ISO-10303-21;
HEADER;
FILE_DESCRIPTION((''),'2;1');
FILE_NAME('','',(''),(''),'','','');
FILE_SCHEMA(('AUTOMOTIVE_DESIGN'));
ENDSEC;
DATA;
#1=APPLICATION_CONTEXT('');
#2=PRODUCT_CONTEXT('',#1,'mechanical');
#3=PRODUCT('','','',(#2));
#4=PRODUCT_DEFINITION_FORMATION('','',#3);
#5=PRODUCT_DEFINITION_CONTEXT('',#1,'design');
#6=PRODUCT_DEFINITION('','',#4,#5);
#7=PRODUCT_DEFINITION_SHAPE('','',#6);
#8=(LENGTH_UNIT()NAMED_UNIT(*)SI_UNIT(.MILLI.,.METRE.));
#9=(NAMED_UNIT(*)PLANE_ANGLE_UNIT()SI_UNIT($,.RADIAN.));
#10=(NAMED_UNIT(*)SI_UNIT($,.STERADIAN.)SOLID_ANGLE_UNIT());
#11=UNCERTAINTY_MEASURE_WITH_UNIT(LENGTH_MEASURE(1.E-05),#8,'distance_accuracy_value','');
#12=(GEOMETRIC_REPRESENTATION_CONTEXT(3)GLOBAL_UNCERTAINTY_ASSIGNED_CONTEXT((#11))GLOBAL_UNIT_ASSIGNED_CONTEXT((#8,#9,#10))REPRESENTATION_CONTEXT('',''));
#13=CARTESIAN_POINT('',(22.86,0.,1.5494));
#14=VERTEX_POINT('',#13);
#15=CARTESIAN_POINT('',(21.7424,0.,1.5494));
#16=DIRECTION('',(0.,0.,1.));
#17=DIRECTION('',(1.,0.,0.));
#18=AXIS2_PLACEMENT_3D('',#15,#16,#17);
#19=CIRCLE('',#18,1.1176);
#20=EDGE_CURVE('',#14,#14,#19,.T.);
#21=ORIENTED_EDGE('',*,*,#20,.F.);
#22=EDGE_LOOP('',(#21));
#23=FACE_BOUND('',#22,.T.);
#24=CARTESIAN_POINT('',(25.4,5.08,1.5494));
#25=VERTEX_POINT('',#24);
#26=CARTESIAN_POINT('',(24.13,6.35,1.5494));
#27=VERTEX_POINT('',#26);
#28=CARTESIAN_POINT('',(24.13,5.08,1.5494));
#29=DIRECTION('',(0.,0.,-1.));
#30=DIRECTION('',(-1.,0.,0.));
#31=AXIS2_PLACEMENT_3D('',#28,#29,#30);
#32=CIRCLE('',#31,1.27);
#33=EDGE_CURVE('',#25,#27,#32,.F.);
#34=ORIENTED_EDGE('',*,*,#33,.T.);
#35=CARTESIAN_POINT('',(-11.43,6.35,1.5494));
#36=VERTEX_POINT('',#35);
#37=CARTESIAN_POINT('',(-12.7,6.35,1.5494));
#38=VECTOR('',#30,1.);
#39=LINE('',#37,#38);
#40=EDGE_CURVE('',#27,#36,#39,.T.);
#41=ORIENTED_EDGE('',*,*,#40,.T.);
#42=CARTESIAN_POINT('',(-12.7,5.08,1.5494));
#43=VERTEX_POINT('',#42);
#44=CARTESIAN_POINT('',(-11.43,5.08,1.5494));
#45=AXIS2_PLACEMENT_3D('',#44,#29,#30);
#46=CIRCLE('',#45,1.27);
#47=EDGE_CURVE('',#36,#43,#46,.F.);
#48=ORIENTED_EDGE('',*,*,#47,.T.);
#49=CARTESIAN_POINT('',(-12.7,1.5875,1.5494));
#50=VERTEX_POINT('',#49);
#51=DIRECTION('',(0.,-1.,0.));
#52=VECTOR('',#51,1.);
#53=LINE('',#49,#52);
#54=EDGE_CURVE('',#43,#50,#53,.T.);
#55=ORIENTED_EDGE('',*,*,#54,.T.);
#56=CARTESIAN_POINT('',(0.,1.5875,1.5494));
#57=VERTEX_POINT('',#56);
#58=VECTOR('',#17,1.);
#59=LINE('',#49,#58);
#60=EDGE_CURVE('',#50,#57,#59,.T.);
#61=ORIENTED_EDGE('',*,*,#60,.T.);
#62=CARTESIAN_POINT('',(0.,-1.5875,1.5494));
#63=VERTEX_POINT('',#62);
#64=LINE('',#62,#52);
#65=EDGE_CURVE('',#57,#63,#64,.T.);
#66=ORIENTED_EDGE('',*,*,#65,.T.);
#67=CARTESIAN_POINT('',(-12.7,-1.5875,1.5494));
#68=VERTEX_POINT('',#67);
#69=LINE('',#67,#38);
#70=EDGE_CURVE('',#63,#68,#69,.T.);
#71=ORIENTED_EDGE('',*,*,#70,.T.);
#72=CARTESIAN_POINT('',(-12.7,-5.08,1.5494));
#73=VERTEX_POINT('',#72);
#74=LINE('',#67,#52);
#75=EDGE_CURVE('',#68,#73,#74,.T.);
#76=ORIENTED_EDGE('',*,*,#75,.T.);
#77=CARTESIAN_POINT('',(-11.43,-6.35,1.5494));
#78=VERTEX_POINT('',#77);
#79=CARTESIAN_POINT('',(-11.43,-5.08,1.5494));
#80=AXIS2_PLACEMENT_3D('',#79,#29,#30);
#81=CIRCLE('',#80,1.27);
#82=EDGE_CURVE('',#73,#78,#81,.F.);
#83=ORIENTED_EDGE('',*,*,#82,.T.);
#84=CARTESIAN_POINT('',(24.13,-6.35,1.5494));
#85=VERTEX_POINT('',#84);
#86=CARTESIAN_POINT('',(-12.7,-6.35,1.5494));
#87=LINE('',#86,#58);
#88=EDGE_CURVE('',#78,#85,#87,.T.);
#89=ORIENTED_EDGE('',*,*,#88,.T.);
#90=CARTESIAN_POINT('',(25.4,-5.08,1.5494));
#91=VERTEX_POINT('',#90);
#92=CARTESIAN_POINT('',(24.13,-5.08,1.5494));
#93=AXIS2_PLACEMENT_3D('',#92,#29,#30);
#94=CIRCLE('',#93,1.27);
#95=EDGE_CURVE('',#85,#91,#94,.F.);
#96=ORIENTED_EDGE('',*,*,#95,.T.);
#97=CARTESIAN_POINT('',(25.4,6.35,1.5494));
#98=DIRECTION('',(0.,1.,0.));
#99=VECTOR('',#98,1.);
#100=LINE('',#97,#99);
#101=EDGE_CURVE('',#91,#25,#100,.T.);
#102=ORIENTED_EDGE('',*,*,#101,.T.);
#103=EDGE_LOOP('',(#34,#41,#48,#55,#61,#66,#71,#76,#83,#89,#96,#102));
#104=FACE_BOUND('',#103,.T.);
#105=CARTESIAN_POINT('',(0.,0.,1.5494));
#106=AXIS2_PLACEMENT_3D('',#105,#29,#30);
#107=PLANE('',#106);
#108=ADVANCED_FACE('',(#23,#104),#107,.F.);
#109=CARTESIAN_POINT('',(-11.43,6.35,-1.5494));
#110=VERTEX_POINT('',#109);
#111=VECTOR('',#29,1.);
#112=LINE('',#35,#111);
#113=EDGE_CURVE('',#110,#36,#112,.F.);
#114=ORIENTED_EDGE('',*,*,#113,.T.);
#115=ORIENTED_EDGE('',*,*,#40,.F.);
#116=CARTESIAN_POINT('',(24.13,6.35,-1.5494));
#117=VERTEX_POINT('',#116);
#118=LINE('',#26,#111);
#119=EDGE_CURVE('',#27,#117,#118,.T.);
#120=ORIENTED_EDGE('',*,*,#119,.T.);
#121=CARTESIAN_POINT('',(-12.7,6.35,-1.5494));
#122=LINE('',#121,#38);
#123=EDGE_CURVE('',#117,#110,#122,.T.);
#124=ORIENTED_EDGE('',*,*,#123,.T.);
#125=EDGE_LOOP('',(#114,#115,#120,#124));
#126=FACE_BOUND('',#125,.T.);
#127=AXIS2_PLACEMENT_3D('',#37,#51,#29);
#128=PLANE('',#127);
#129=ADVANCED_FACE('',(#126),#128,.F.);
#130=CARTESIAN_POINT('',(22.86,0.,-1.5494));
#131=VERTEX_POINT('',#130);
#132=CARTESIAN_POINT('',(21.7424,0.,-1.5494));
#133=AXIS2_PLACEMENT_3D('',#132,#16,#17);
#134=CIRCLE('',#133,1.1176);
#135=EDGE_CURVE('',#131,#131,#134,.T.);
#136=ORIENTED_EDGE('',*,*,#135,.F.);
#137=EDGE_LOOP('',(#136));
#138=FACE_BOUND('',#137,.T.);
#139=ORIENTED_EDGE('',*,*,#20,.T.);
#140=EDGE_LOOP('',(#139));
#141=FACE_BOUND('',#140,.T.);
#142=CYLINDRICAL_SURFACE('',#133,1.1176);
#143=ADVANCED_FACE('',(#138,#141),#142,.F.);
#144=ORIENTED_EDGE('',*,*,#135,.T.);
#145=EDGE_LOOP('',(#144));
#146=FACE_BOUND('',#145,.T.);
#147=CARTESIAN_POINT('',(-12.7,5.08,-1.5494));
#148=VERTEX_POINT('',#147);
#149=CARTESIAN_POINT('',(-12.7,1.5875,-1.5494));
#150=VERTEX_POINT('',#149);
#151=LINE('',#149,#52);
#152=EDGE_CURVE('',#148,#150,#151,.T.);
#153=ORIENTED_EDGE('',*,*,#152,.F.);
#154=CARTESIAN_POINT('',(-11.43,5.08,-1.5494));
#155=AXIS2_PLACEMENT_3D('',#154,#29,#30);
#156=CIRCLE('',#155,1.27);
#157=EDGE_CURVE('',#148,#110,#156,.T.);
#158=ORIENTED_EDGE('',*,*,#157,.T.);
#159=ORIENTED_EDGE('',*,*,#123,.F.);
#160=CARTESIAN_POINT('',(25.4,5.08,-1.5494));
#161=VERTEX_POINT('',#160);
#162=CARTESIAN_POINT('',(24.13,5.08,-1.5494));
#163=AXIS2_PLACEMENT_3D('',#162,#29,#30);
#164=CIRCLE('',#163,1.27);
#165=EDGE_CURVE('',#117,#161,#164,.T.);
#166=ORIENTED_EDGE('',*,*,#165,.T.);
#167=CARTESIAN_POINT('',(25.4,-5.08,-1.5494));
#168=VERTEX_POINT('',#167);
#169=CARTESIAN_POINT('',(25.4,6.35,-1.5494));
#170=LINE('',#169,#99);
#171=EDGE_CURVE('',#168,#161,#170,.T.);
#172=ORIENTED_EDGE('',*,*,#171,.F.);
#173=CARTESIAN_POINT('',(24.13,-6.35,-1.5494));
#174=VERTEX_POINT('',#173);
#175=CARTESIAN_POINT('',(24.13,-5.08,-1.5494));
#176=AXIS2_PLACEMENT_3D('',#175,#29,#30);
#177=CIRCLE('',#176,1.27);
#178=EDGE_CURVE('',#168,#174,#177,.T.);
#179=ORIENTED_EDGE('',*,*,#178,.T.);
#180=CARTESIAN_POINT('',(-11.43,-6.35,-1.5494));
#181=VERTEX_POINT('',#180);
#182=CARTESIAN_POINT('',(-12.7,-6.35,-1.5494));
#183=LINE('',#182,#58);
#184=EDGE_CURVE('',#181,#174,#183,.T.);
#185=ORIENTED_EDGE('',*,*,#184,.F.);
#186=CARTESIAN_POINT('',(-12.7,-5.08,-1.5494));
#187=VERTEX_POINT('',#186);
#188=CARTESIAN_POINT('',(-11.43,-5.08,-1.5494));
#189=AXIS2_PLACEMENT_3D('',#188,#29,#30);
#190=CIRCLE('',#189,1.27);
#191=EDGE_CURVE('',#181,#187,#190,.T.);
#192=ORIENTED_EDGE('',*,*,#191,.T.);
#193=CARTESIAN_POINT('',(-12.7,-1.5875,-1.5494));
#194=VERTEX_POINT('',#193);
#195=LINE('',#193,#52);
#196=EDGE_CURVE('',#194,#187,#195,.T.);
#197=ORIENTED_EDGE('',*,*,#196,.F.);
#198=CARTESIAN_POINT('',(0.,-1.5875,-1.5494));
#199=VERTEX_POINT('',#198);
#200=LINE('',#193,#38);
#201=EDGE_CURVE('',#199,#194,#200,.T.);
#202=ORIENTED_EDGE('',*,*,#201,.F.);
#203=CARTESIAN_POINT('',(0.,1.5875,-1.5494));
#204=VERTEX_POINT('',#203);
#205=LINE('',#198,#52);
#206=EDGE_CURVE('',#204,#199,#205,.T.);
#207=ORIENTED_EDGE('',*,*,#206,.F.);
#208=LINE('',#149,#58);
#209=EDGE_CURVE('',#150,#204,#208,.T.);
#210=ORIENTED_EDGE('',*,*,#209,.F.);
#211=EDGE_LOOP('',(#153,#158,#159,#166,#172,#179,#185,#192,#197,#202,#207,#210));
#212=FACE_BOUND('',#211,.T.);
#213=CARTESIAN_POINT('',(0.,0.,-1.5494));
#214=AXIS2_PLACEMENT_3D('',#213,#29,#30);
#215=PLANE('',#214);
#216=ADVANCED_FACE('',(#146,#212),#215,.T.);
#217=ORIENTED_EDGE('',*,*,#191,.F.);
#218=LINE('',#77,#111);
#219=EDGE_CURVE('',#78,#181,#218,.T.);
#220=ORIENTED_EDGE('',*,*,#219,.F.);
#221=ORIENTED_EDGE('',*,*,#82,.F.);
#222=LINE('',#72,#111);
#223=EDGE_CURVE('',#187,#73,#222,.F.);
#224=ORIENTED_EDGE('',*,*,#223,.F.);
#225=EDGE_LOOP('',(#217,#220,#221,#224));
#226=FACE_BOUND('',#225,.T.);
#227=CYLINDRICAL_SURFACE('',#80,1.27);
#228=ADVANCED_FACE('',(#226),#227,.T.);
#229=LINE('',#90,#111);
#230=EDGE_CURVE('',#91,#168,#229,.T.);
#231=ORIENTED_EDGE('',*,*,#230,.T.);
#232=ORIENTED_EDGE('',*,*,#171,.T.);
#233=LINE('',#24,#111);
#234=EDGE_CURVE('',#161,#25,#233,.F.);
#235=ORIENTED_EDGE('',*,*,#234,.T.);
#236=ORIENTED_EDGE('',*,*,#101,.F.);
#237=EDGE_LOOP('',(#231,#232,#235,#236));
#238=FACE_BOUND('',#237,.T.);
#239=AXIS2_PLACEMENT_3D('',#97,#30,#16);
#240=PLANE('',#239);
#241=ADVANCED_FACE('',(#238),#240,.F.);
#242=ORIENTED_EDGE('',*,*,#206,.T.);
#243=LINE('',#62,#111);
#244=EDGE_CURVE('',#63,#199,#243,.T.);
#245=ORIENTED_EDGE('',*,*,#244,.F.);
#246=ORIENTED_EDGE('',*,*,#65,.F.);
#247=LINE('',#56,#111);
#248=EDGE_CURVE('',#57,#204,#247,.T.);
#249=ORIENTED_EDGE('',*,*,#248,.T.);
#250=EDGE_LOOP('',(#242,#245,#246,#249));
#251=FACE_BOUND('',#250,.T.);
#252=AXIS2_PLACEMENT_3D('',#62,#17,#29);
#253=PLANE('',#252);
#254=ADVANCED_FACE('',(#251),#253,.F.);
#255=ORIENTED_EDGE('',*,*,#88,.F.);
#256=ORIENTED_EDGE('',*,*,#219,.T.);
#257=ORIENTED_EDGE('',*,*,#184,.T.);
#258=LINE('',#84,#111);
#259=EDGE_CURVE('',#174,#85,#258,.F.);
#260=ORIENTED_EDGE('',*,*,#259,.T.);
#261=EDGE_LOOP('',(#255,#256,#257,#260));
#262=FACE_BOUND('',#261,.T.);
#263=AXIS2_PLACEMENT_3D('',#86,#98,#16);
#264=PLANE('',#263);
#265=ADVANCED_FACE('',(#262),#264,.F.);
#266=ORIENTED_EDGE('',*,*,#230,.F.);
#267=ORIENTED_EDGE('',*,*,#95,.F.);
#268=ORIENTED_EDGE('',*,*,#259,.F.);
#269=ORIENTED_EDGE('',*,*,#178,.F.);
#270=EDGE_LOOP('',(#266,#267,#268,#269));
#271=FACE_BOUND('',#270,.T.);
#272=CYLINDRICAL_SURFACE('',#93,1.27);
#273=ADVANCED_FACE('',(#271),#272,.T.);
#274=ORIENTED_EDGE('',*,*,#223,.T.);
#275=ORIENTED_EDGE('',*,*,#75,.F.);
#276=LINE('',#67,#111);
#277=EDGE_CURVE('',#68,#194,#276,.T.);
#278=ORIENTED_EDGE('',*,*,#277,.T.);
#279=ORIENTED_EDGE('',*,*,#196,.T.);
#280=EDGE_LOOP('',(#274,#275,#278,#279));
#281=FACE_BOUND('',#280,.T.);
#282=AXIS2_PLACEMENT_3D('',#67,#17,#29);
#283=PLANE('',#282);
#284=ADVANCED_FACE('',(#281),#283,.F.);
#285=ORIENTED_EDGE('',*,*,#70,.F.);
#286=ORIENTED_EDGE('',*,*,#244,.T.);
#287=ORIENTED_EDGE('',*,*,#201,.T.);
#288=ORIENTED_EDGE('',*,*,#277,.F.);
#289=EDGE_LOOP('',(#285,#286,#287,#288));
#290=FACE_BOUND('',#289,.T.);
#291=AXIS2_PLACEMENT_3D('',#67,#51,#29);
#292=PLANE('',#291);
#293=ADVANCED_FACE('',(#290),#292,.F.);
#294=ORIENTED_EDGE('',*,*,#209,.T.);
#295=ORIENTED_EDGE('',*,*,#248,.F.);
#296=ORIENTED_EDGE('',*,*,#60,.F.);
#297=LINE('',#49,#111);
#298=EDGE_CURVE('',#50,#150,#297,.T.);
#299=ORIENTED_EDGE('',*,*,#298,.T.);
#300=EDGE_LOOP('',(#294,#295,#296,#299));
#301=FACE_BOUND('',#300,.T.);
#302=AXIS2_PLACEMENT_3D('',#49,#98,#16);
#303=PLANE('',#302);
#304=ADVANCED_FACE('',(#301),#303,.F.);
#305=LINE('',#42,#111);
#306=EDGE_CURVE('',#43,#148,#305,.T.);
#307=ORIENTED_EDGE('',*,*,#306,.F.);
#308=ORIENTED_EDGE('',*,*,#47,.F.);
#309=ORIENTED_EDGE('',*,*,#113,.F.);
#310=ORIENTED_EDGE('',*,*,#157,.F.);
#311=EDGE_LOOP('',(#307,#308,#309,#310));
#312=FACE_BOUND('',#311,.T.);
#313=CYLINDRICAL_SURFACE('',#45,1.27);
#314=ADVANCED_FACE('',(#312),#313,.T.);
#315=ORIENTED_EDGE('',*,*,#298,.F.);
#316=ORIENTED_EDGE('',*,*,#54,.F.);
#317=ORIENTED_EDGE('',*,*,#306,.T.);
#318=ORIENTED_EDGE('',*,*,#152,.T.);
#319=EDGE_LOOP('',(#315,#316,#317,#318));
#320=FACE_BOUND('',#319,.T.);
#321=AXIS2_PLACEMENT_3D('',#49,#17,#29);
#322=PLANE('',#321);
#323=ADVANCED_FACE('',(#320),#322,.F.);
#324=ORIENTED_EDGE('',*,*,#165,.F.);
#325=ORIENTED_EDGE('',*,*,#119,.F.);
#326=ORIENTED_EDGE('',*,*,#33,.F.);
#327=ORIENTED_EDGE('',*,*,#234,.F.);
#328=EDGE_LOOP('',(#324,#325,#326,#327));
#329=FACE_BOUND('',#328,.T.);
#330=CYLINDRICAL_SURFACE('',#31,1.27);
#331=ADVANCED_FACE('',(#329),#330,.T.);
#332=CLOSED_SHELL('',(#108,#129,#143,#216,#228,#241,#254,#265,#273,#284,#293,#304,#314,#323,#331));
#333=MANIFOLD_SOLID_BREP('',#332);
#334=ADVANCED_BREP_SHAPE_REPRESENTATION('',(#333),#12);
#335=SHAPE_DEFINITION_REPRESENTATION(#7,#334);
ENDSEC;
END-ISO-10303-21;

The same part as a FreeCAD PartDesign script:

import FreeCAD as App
import Part
import Sketcher
Q = App.Units.Quantity


def edges_at(feature, points):
    """Names of the edges that pass closest to the given points."""
    edges = feature.Shape.Edges
    near = lambda p: min(range(len(edges)), key=lambda i: edges[i].distToShape(Part.Vertex(*p))[0])
    return sorted({f"Edge{near(p) + 1}" for p in points})

doc = App.newDocument("Part")
body = doc.addObject("PartDesign::Body", "Body")

# Sketch on XY plane
sketch1 = doc.addObject("Sketcher::SketchObject", "Sketch")
body.addObject(sketch1)
sketch1.AttachmentSupport = (doc.XY_Plane, [""])
sketch1.MapMode = "FlatFace"
sketch1.addGeometry(Part.LineSegment(App.Vector(-12.7, 6.35, 0), App.Vector(-12.7, 1.5875, 0)), False)
sketch1.addGeometry(Part.LineSegment(App.Vector(-12.7, 1.5875, 0), App.Vector(0, 1.5875, 0)), False)
sketch1.addGeometry(Part.LineSegment(App.Vector(0, 1.5875, 0), App.Vector(0, -1.5875, 0)), False)
sketch1.addGeometry(Part.LineSegment(App.Vector(0, -1.5875, 0), App.Vector(-12.7, -1.5875, 0)), False)
sketch1.addGeometry(Part.LineSegment(App.Vector(-12.7, -1.5875, 0), App.Vector(-12.7, -6.35, 0)), False)
sketch1.addGeometry(Part.LineSegment(App.Vector(-12.7, -6.35, 0), App.Vector(25.4, -6.35, 0)), False)
sketch1.addGeometry(Part.LineSegment(App.Vector(25.4, -6.35, 0), App.Vector(25.4, 6.35, 0)), False)
sketch1.addGeometry(Part.LineSegment(App.Vector(25.4, 6.35, 0), App.Vector(-12.7, 6.35, 0)), False)
sketch1.addConstraint(Sketcher.Constraint("Coincident", 0, 2, 1, 1))
sketch1.addConstraint(Sketcher.Constraint("Coincident", 1, 2, 2, 1))
sketch1.addConstraint(Sketcher.Constraint("Coincident", 2, 2, 3, 1))
sketch1.addConstraint(Sketcher.Constraint("Coincident", 3, 2, 4, 1))
sketch1.addConstraint(Sketcher.Constraint("Coincident", 4, 2, 5, 1))
sketch1.addConstraint(Sketcher.Constraint("Coincident", 5, 2, 6, 1))
sketch1.addConstraint(Sketcher.Constraint("Coincident", 6, 2, 7, 1))
sketch1.addConstraint(Sketcher.Constraint("Coincident", 7, 2, 0, 1))
sketch1.addConstraint(Sketcher.Constraint("Vertical", 0))
sketch1.addConstraint(Sketcher.Constraint("Horizontal", 1))
sketch1.addConstraint(Sketcher.Constraint("Vertical", 2))
sketch1.addConstraint(Sketcher.Constraint("Horizontal", 3))
sketch1.addConstraint(Sketcher.Constraint("Vertical", 4))
sketch1.addConstraint(Sketcher.Constraint("Horizontal", 5))
sketch1.addConstraint(Sketcher.Constraint("Vertical", 6))
sketch1.addConstraint(Sketcher.Constraint("Horizontal", 7))
sketch1.addConstraint(Sketcher.Constraint("Symmetric", 1, 2, 2, 2, -1, 1))
sketch1.addConstraint(Sketcher.Constraint("Symmetric", 4, 2, 7, 2, -1))
sketch1.addConstraint(Sketcher.Constraint("Equal", 3, 6))
sketch1.addConstraint(Sketcher.Constraint("DistanceX", 1, 1, 1, 2, Q("0.5 in")))
sketch1.addConstraint(Sketcher.Constraint("DistanceX", 5, 1, 5, 2, Q("1.5 in")))
sketch1.addConstraint(Sketcher.Constraint("DistanceY", 0, 2, 0, 1, Q("0.1875 in")))
pad1 = doc.addObject("PartDesign::Pad", "Pad")
body.addObject(pad1)
pad1.Profile = sketch1
pad1.Length = Q("0.122 in")
pad1.Midplane = True
doc.recompute()

fillet = doc.addObject("PartDesign::Fillet", "Fillet")
body.addObject(fillet)
fillet.Base = (pad1, edges_at(pad1, [
    (-12.7, 6.35, 0),
    (25.4, 6.35, 0),
    (25.4, -6.35, 0),
    (-12.7, -6.35, 0),
]))
fillet.Radius = Q("0.05 in")

# Sketch on XY plane
sketch2 = doc.addObject("Sketcher::SketchObject", "Sketch001")
body.addObject(sketch2)
sketch2.AttachmentSupport = (doc.XY_Plane, [""])
sketch2.MapMode = "FlatFace"
sketch2.AttachmentOffset = App.Placement(App.Vector(0, 0, 0.061 * 25.4), App.Rotation())
sketch2.addGeometry(Part.Circle(App.Vector(21.7424, 0, 0), App.Vector(0, 0, 1), 1.1176), False)
sketch2.addConstraint(Sketcher.Constraint("PointOnObject", 0, 3, -1))
sketch2.addConstraint(Sketcher.Constraint("Diameter", 0, Q("0.088 in")))
sketch2.addConstraint(Sketcher.Constraint("DistanceX", -1, 1, 0, 3, Q("0.856 in")))
pocket1 = doc.addObject("PartDesign::Pocket", "Pocket")
body.addObject(pocket1)
pocket1.Profile = sketch2
pocket1.Type = "ThroughAll"

doc.recompute()
